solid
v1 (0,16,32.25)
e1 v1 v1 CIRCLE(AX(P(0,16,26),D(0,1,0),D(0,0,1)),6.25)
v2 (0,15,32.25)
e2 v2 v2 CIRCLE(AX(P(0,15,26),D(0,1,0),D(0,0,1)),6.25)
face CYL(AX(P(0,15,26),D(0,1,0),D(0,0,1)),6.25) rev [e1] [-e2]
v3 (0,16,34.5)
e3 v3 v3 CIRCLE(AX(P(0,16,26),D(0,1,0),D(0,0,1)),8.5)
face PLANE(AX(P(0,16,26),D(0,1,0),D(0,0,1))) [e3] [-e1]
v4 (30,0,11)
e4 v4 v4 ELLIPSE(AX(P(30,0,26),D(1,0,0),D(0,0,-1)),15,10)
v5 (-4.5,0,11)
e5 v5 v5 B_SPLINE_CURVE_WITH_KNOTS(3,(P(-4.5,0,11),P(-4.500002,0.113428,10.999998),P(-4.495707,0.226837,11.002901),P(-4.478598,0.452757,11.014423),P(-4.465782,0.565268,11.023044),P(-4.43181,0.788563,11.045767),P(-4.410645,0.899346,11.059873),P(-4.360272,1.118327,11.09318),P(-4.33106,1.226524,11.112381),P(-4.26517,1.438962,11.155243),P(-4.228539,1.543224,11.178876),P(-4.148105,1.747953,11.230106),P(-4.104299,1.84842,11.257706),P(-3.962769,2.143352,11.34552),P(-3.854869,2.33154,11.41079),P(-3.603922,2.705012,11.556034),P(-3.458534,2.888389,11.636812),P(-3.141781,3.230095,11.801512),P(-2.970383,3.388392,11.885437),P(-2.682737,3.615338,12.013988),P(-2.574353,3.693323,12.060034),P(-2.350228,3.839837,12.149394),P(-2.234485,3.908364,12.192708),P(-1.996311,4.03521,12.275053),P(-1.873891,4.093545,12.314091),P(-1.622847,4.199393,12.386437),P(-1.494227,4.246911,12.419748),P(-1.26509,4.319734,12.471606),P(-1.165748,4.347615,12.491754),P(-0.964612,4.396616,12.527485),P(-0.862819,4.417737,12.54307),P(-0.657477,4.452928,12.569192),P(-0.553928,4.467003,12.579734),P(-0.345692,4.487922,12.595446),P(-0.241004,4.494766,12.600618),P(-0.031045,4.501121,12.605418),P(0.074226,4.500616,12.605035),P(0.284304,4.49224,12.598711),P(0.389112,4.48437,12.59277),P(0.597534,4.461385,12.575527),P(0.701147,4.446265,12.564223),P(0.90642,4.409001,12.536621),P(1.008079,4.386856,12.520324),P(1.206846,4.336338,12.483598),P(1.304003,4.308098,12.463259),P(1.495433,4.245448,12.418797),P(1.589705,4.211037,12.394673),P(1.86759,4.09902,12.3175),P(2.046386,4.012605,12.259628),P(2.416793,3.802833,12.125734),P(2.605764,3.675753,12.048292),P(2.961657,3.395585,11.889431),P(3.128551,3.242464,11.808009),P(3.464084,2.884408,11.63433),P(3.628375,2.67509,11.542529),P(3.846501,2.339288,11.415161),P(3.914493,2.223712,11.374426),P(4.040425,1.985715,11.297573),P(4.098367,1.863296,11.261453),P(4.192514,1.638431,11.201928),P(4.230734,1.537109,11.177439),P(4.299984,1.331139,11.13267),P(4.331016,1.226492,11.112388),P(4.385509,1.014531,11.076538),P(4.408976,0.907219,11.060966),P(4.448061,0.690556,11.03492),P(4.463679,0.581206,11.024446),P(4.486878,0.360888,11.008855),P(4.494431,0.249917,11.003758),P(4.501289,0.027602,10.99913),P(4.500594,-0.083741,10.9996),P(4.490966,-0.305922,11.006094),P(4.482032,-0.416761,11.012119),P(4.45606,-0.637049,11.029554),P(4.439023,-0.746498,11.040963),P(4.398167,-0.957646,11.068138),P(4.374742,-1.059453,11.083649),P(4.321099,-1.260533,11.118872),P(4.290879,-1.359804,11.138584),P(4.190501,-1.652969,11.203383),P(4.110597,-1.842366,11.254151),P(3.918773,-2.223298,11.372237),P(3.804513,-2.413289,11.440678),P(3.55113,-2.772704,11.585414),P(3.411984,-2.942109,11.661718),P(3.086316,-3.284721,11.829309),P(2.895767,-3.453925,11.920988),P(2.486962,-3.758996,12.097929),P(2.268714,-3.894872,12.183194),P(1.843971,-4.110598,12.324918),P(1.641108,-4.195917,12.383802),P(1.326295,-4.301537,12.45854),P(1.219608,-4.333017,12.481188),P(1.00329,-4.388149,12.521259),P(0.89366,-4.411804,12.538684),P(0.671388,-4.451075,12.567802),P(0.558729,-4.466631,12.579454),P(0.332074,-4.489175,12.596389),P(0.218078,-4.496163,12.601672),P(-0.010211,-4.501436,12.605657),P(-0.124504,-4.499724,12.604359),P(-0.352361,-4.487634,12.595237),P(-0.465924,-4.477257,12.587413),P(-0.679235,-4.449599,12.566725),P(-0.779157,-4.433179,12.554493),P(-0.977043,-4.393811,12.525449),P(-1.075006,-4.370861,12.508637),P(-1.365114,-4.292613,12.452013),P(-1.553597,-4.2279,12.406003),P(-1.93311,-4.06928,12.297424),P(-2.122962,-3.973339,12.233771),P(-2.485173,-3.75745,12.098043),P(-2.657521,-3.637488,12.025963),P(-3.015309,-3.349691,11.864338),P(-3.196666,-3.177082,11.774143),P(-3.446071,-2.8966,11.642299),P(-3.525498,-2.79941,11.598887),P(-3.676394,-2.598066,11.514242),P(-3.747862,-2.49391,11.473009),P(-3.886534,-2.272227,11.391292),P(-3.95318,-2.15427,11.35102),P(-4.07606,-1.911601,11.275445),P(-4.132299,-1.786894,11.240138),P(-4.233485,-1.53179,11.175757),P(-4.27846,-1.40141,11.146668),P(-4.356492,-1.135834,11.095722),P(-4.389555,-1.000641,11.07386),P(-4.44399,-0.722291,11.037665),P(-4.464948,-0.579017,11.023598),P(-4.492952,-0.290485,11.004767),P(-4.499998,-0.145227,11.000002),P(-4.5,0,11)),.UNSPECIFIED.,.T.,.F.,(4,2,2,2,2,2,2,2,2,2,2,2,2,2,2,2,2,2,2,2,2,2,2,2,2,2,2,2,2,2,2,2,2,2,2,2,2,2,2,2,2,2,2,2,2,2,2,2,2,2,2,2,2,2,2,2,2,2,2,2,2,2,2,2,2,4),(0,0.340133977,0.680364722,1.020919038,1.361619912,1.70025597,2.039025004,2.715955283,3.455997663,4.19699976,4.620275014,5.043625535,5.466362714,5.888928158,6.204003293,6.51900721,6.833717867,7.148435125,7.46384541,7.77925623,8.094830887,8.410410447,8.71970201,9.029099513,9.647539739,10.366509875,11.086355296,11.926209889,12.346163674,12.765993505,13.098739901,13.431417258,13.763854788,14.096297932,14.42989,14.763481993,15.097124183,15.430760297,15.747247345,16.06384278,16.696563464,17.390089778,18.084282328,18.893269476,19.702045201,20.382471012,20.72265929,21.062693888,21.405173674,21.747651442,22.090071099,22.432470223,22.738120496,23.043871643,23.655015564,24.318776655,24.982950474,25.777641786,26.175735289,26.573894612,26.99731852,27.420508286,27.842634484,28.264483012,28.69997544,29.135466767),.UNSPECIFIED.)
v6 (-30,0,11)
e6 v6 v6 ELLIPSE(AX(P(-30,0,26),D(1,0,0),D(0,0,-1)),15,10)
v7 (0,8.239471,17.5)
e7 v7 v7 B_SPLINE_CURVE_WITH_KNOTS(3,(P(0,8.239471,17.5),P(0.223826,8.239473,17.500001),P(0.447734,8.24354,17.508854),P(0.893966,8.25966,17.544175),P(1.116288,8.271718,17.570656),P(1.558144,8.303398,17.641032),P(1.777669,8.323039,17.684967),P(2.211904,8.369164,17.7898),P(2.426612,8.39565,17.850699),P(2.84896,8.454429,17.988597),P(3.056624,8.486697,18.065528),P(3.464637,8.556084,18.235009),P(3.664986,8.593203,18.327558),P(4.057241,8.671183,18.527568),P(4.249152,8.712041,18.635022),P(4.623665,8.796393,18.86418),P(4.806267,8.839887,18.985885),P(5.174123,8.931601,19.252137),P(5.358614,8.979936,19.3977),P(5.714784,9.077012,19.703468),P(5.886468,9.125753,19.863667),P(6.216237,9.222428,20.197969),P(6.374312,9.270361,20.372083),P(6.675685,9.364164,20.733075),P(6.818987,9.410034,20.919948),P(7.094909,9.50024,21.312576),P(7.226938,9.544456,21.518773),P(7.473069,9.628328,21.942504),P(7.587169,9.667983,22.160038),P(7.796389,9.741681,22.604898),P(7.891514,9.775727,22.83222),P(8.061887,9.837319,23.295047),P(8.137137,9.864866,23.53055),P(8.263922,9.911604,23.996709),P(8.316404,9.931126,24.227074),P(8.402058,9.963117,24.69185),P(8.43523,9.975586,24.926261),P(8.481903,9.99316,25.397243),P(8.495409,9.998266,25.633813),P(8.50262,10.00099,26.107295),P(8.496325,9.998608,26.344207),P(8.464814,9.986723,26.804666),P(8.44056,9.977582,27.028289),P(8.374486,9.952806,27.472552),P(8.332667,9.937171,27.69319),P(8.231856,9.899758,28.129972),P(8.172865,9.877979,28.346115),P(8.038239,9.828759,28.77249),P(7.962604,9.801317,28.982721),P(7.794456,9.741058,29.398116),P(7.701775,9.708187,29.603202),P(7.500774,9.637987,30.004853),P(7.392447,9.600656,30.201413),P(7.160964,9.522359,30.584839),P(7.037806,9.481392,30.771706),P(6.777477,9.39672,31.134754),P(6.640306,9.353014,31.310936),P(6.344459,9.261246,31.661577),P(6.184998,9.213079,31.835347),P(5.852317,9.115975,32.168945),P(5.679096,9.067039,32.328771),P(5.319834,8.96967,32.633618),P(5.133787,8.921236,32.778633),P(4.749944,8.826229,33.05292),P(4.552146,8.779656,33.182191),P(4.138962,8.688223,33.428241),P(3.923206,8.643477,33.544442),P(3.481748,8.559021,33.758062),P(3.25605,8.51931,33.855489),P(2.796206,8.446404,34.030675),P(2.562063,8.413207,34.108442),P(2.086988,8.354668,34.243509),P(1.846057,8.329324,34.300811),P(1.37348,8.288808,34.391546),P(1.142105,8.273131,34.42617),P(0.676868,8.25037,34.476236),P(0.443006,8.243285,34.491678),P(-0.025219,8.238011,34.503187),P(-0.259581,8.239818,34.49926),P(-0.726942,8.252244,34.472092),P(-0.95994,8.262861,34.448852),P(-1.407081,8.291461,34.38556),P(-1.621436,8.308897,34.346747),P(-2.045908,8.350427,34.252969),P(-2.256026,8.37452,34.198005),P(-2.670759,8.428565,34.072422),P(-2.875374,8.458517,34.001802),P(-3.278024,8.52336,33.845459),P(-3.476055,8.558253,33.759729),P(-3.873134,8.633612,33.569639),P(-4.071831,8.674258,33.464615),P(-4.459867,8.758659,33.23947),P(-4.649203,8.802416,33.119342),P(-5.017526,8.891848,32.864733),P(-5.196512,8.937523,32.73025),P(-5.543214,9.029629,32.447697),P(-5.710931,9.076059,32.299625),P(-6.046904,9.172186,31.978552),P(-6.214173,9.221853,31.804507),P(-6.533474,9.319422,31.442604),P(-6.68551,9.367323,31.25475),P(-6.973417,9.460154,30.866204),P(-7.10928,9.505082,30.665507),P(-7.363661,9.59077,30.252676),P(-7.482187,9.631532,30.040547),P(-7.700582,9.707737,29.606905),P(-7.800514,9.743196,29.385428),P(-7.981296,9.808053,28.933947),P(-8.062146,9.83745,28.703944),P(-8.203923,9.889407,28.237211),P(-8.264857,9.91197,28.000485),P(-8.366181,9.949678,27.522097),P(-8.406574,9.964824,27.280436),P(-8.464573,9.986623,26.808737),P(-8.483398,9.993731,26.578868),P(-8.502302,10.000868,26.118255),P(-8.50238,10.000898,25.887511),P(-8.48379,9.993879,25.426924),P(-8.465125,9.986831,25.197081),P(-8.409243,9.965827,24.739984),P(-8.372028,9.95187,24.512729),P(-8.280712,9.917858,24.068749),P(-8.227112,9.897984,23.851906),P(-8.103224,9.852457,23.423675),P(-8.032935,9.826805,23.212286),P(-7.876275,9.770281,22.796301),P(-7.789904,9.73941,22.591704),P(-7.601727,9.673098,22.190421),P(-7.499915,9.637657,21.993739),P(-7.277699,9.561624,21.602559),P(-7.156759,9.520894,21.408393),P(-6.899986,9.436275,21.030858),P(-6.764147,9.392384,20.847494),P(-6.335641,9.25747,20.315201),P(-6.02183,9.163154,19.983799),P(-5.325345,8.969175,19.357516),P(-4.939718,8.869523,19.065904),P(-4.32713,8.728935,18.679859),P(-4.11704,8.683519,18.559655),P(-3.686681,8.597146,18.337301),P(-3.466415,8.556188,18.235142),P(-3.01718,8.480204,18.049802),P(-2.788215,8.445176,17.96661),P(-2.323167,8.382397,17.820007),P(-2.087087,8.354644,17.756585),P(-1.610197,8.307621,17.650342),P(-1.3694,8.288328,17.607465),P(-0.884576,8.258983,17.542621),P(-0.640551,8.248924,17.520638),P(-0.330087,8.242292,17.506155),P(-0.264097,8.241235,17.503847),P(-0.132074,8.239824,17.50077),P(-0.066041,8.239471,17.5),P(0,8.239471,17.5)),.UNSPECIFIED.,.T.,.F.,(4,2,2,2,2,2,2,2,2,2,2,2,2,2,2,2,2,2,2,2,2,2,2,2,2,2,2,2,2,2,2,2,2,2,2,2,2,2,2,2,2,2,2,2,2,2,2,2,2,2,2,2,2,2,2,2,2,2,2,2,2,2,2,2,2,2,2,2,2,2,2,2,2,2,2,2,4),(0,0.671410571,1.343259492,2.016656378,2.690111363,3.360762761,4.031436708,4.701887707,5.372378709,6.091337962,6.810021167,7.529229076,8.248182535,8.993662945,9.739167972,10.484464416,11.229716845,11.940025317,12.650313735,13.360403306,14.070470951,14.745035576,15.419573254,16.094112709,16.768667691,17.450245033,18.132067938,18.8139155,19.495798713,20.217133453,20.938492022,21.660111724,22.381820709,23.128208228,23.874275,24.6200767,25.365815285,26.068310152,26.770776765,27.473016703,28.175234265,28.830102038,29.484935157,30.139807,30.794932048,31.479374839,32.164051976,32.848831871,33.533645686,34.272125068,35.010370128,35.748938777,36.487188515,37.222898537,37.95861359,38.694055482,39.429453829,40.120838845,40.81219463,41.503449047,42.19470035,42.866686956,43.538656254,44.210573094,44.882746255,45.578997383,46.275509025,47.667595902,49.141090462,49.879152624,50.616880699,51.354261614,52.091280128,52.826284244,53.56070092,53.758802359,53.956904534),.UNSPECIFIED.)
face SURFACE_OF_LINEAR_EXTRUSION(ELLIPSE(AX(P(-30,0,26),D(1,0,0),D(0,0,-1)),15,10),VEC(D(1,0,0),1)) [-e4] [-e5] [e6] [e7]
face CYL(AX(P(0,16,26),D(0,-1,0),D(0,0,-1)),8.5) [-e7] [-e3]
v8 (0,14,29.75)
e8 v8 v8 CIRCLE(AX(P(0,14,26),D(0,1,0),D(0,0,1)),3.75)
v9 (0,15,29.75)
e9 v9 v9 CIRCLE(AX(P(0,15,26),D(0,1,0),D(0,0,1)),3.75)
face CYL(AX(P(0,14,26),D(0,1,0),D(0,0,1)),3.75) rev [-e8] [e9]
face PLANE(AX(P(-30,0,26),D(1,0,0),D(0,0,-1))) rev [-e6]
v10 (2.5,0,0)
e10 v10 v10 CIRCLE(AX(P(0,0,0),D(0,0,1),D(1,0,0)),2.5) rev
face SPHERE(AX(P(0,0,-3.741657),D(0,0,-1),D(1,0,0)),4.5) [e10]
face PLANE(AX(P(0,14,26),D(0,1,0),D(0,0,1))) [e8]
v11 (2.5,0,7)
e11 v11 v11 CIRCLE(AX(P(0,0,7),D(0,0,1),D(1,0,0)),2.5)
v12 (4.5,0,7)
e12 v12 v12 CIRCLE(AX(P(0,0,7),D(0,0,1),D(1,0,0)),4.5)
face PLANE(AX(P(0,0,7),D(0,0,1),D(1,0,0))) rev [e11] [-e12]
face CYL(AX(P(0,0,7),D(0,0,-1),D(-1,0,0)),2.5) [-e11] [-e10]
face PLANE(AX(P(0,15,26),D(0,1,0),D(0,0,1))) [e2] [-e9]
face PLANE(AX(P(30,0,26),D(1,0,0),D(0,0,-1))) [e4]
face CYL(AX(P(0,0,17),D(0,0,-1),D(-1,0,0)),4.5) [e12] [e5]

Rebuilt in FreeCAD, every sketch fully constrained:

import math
import FreeCAD as App
import Part
import Sketcher

doc = App.newDocument("Part")
body = doc.addObject("PartDesign::Body", "Body")

# Sketch on XY plane
sketch1 = doc.addObject("Sketcher::SketchObject", "Sketch")
body.addObject(sketch1)
sketch1.AttachmentSupport = (doc.XY_Plane, [""])
sketch1.MapMode = "FlatFace"
sketch1.addGeometry(Part.Circle(App.Vector(0, 0, 0), App.Vector(0, 0, 1), 2.5), False)
sketch1.addConstraint(Sketcher.Constraint("Coincident", 0, 3, -1, 1))
sketch1.addConstraint(Sketcher.Constraint("Diameter", 0, 5.0))
pad1 = doc.addObject("PartDesign::Pad", "Pad")
body.addObject(pad1)
pad1.Profile = sketch1
pad1.Length = 7

# Sketch on XY plane
sketch2 = doc.addObject("Sketcher::SketchObject", "Sketch001")
body.addObject(sketch2)
sketch2.AttachmentSupport = (doc.XY_Plane, [""])
sketch2.MapMode = "FlatFace"
sketch2.AttachmentOffset = App.Placement(App.Vector(0, 0, 7), App.Rotation())
sketch2.addGeometry(Part.Circle(App.Vector(0, 0, 0), App.Vector(0, 0, 1), 4.5), False)
sketch2.addConstraint(Sketcher.Constraint("Coincident", 0, 3, -1, 1))
sketch2.addConstraint(Sketcher.Constraint("Diameter", 0, 9.0))
pad2 = doc.addObject("PartDesign::Pad", "Pad001")
body.addObject(pad2)
pad2.Profile = sketch2
pad2.Length = 10

# Sketch on YZ plane
sketch3 = doc.addObject("Sketcher::SketchObject", "Sketch002")
body.addObject(sketch3)
sketch3.AttachmentSupport = (doc.YZ_Plane, [""])
sketch3.MapMode = "FlatFace"
sketch3.addGeometry(Part.Ellipse(App.Vector(0, 11, 0), App.Vector(10, 26, 0), App.Vector(0, 26, 0)), False)
sketch3.addConstraint(Sketcher.Constraint("Block", 0))
pad3 = doc.addObject("PartDesign::Pad", "Pad002")
body.addObject(pad3)
pad3.Profile = sketch3
pad3.Type = "TwoLengths"
pad3.Length = 30
pad3.Length2 = 30

# Sketch on XZ plane
sketch4 = doc.addObject("Sketcher::SketchObject", "Sketch003")
body.addObject(sketch4)
sketch4.AttachmentSupport = (doc.XZ_Plane, [""])
sketch4.MapMode = "FlatFace"
sketch4.addGeometry(Part.Circle(App.Vector(0, 26, 0), App.Vector(0, 0, 1), 8), False)
sketch4.addConstraint(Sketcher.Constraint("PointOnObject", 0, 3, -2))
sketch4.addConstraint(Sketcher.Constraint("Diameter", 0, 17.0))
sketch4.addConstraint(Sketcher.Constraint("DistanceY", -1, 1, 0, 3, 26.0))
pad4 = doc.addObject("PartDesign::Pad", "Pad003")
body.addObject(pad4)
pad4.Profile = sketch4
pad4.Length = 16
pad4.Reversed = True

# Sketch on XZ plane
sketch5 = doc.addObject("Sketcher::SketchObject", "Sketch004")
body.addObject(sketch5)
sketch5.AttachmentSupport = (doc.XZ_Plane, [""])
sketch5.MapMode = "FlatFace"
sketch5.AttachmentOffset = App.Placement(App.Vector(0, 0, -16), App.Rotation())
sketch5.addGeometry(Part.Circle(App.Vector(0, 26, 0), App.Vector(0, 0, 1), 6), False)
sketch5.addConstraint(Sketcher.Constraint("PointOnObject", 0, 3, -2))
sketch5.addConstraint(Sketcher.Constraint("Diameter", 0, 12.5))
sketch5.addConstraint(Sketcher.Constraint("DistanceY", -1, 1, 0, 3, 26.0))
pocket1 = doc.addObject("PartDesign::Pocket", "Pocket")
body.addObject(pocket1)
pocket1.Profile = sketch5
pocket1.Length = 1
pocket1.Reversed = True

# Sketch on XZ plane
sketch6 = doc.addObject("Sketcher::SketchObject", "Sketch005")
body.addObject(sketch6)
sketch6.AttachmentSupport = (doc.XZ_Plane, [""])
sketch6.MapMode = "FlatFace"
sketch6.AttachmentOffset = App.Placement(App.Vector(0, 0, -15), App.Rotation())
sketch6.addGeometry(Part.Circle(App.Vector(0, 26, 0), App.Vector(0, 0, 1), 3.8), False)
sketch6.addConstraint(Sketcher.Constraint("PointOnObject", 0, 3, -2))
sketch6.addConstraint(Sketcher.Constraint("Diameter", 0, 7.5))
sketch6.addConstraint(Sketcher.Constraint("DistanceY", -1, 1, 0, 3, 26.0))
pocket2 = doc.addObject("PartDesign::Pocket", "Pocket001")
body.addObject(pocket2)
pocket2.Profile = sketch6
pocket2.Length = 1
pocket2.Reversed = True

# Sketch on XZ plane
sketch7 = doc.addObject("Sketcher::SketchObject", "Sketch006")
body.addObject(sketch7)
sketch7.AttachmentSupport = (doc.XZ_Plane, [""])
sketch7.MapMode = "FlatFace"
sketch7.addGeometry(Part.LineSegment(App.Vector(0, -8.2, 0), App.Vector(0, 0.8, 0)), False)
sketch7.addGeometry(Part.ArcOfCircle(Part.Circle(App.Vector(0, -3.7, 0), App.Vector(0, 0, 1), 4.5), math.radians(-90), math.radians(90)), False)
sketch7.addConstraint(Sketcher.Constraint("Coincident", 0, 1, 1, 1))
sketch7.addConstraint(Sketcher.Constraint("Coincident", 1, 2, 0, 2))
sketch7.addConstraint(Sketcher.Constraint("Vertical", 0))
sketch7.addConstraint(Sketcher.Constraint("PointOnObject", 1, 3, -2))
sketch7.addConstraint(Sketcher.Constraint("PointOnObject", 0, 1, -2))
sketch7.addConstraint(Sketcher.Constraint("Radius", 1, 4.5))
sketch7.addConstraint(Sketcher.Constraint("DistanceY", 1, 3, -1, 1, 3.741657))
revolution = doc.addObject("PartDesign::Revolution", "Revolution")
body.addObject(revolution)
revolution.Profile = sketch7
revolution.ReferenceAxis = (sketch7, ["V_Axis"])
revolution.Angle = 360

doc.recompute()
